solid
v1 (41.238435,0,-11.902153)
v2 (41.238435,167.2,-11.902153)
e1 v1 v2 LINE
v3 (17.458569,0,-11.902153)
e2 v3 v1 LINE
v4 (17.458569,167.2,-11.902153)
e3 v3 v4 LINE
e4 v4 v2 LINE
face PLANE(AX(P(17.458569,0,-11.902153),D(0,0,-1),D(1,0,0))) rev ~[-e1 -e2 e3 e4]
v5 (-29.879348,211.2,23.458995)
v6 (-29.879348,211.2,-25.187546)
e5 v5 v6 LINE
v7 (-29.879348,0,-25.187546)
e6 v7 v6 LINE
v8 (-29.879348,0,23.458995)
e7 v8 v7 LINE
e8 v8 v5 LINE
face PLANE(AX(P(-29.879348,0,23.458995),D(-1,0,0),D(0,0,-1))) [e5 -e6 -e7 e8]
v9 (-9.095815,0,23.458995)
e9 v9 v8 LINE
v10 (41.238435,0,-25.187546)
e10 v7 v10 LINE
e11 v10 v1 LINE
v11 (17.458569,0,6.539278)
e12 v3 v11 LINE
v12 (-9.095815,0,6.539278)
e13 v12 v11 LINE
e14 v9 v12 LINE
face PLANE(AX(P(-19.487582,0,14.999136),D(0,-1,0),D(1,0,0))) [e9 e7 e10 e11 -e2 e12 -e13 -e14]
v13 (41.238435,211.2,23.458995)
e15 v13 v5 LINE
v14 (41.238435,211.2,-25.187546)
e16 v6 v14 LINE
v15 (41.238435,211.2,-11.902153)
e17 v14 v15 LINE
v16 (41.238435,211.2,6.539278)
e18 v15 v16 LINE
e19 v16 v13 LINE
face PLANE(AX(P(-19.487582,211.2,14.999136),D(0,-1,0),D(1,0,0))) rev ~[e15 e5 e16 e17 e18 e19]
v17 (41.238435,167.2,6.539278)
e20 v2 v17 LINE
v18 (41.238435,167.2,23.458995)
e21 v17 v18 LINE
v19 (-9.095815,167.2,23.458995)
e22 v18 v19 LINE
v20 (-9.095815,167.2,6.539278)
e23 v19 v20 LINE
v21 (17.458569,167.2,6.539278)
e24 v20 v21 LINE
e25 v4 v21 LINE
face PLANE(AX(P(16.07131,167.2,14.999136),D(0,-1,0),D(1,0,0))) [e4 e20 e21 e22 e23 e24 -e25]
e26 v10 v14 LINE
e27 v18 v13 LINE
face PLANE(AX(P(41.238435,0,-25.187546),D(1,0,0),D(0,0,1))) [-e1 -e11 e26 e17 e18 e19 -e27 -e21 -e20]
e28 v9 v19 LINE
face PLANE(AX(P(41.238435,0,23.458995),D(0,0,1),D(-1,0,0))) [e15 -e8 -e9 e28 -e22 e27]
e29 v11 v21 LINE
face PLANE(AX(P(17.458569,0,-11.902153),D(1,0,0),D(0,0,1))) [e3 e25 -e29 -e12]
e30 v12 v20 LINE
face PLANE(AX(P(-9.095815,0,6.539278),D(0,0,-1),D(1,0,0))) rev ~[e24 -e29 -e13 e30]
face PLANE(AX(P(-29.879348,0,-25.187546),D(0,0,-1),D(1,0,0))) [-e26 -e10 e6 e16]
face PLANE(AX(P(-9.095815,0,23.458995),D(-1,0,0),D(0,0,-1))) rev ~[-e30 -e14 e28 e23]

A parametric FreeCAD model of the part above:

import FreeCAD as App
import Part
import Sketcher
Q = App.Units.Quantity


def add_polygon(sketch, points):
    """Adds a closed chain of lines whose ends are joined by coincident constraints."""
    first, n = sketch.GeometryCount, len(points)
    for a, b in zip(points, points[1:] + points[:1]):
        sketch.addGeometry(Part.LineSegment(App.Vector(*a, 0), App.Vector(*b, 0)), False)
    for i in range(n):
        sketch.addConstraint(Sketcher.Constraint("Coincident", first + i, 2, first + (i + 1) % n, 1))

doc = App.newDocument("Part")
params = doc.addObject("Spreadsheet::Sheet", "Params")
for row, (alias, value) in enumerate([
    ("pad1_length", "211.2 mm"),
    ("pocket1_length", "167.2 mm"),
], start=1):
    params.set(f"A{row}", alias)
    params.set(f"B{row}", "=" + value)
    params.setAlias(f"B{row}", alias)

body = doc.addObject("PartDesign::Body", "Body")

# Sketch on XZ plane
sketch1 = doc.addObject("Sketcher::SketchObject", "Sketch")
body.addObject(sketch1)
sketch1.AttachmentSupport = (doc.XZ_Plane, [""])
sketch1.MapMode = "FlatFace"
add_polygon(sketch1, [(-30, 23), (-30, -25), (41, -25), (41, -12), (41, 7), (41, 23)])  # lines 0-5
sketch1.addConstraint(Sketcher.Constraint("Vertical", 0))
sketch1.addConstraint(Sketcher.Constraint("Horizontal", 1))
sketch1.addConstraint(Sketcher.Constraint("Vertical", 2))
sketch1.addConstraint(Sketcher.Constraint("Vertical", 3))
sketch1.addConstraint(Sketcher.Constraint("Vertical", 4))
sketch1.addConstraint(Sketcher.Constraint("Horizontal", 5))
sketch1.addConstraint(Sketcher.Constraint("DistanceY", 0, 2, 0, 1, Q("48.646541 mm")))
sketch1.addConstraint(Sketcher.Constraint("DistanceY", 3, 1, 3, 2, Q("18.44143 mm")))
sketch1.addConstraint(Sketcher.Constraint("DistanceX", 1, 1, 1, 2, Q("71.117783 mm")))
sketch1.addConstraint(Sketcher.Constraint("DistanceY", 2, 1, 2, 2, Q("13.285394 mm")))
sketch1.addConstraint(Sketcher.Constraint("DistanceX", 0, 2, -1, 1, Q("29.879348 mm")))
sketch1.addConstraint(Sketcher.Constraint("DistanceY", 0, 2, -1, 1, Q("25.187546 mm")))
pad1 = doc.addObject("PartDesign::Pad", "Pad")
body.addObject(pad1)
pad1.Profile = sketch1
pad1.setExpression("Length", "Params.pad1_length")
pad1.Reversed = True

# Sketch on XZ plane
sketch2 = doc.addObject("Sketcher::SketchObject", "Sketch001")
body.addObject(sketch2)
sketch2.AttachmentSupport = (doc.XZ_Plane, [""])
sketch2.MapMode = "FlatFace"
add_polygon(sketch2, [(41, 23), (-9, 23), (-9, 7), (17, 7), (17, -12), (41, -12), (41, 7)])  # lines 0-6
sketch2.addConstraint(Sketcher.Constraint("Horizontal", 0))
sketch2.addConstraint(Sketcher.Constraint("Vertical", 1))
sketch2.addConstraint(Sketcher.Constraint("Horizontal", 2))
sketch2.addConstraint(Sketcher.Constraint("Vertical", 3))
sketch2.addConstraint(Sketcher.Constraint("Horizontal", 4))
sketch2.addConstraint(Sketcher.Constraint("Vertical", 5))
sketch2.addConstraint(Sketcher.Constraint("Vertical", 6))
sketch2.addConstraint(Sketcher.Constraint("Horizontal", 2, 2, 5, 2))
sketch2.addConstraint(Sketcher.Constraint("DistanceX", 0, 2, 0, 1, Q("50.33425 mm")))
sketch2.addConstraint(Sketcher.Constraint("DistanceY", 3, 2, 3, 1, Q("18.44143 mm")))
sketch2.addConstraint(Sketcher.Constraint("DistanceX", 2, 1, 2, 2, Q("26.554384 mm")))
sketch2.addConstraint(Sketcher.Constraint("DistanceY", 1, 2, 1, 1, Q("16.919717 mm")))
sketch2.addConstraint(Sketcher.Constraint("DistanceX", -1, 1, 2, 2, Q("17.458569 mm")))
sketch2.addConstraint(Sketcher.Constraint("DistanceY", -1, 1, 0, 2, Q("23.458995 mm")))
pocket1 = doc.addObject("PartDesign::Pocket", "Pocket")
body.addObject(pocket1)
pocket1.Profile = sketch2
pocket1.setExpression("Length", "Params.pocket1_length")

doc.recompute()
